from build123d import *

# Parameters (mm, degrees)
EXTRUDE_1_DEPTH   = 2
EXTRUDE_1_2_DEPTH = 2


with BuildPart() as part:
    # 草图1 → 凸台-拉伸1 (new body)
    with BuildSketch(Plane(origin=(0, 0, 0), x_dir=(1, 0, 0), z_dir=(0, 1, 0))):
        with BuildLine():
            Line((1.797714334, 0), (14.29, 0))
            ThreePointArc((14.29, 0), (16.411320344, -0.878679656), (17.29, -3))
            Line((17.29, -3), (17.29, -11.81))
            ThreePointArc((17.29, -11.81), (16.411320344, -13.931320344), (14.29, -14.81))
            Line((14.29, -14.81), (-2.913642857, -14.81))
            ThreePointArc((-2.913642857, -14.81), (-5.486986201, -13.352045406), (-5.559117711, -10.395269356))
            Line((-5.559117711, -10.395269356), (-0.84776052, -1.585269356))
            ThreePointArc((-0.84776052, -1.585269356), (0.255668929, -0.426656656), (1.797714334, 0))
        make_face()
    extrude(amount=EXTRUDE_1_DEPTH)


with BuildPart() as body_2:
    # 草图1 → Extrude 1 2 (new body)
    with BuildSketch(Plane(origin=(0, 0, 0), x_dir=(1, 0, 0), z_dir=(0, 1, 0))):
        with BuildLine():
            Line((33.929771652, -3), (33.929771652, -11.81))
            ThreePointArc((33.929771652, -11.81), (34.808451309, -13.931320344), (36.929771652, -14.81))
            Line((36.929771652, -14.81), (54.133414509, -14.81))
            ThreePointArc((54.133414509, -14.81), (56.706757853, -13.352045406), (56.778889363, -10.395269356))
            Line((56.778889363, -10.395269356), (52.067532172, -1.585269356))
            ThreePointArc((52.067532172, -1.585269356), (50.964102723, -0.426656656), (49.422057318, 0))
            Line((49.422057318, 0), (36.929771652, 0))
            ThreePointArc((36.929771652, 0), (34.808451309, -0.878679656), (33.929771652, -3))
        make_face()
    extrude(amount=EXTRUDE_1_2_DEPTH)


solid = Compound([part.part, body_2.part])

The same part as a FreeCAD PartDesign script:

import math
import FreeCAD as App
import Part
import Sketcher
Q = App.Units.Quantity

doc = App.newDocument("Part")
body = doc.addObject("PartDesign::Body", "Body")

sketch1 = body.newObject("Sketcher::SketchObject", "Sketch")
sketch1.AttachmentSupport = (doc.getObject("XZ_Plane"), [""])
sketch1.MapMode = "FlatFace"
sketch1.addGeometry(Part.LineSegment(App.Vector(14.29, 0, 0), App.Vector(1.797714, 0, 0)), False)
sketch1.addGeometry(Part.ArcOfCircle(Part.Circle(App.Vector(1.797714, 3, 0), App.Vector(0, 0, 1), 3), math.radians(-151.863296), math.radians(-90)), False)
sketch1.addGeometry(Part.LineSegment(App.Vector(-0.847761, 1.585269, 0), App.Vector(-5.559118, 10.395269, 0)), False)
sketch1.addGeometry(Part.ArcOfCircle(Part.Circle(App.Vector(-2.913643, 11.81, 0), App.Vector(0, 0, 1), 3), math.radians(90), math.radians(208.136704)), False)
sketch1.addGeometry(Part.LineSegment(App.Vector(-2.913643, 14.81, 0), App.Vector(14.29, 14.81, 0)), False)
sketch1.addGeometry(Part.ArcOfCircle(Part.Circle(App.Vector(14.29, 11.81, 0), App.Vector(0, 0, 1), 3), math.radians(0), math.radians(90)), False)
sketch1.addGeometry(Part.LineSegment(App.Vector(17.29, 11.81, 0), App.Vector(17.29, 3, 0)), False)
sketch1.addGeometry(Part.ArcOfCircle(Part.Circle(App.Vector(14.29, 3, 0), App.Vector(0, 0, 1), 3), math.radians(-90), math.radians(0)), False)
sketch1.addConstraint(Sketcher.Constraint("Tangent", 0, 2, 1, 2))
sketch1.addConstraint(Sketcher.Constraint("Tangent", 1, 1, 2, 1))
sketch1.addConstraint(Sketcher.Constraint("Tangent", 2, 2, 3, 2))
sketch1.addConstraint(Sketcher.Constraint("Tangent", 3, 1, 4, 1))
sketch1.addConstraint(Sketcher.Constraint("Tangent", 4, 2, 5, 2))
sketch1.addConstraint(Sketcher.Constraint("Tangent", 5, 1, 6, 1))
sketch1.addConstraint(Sketcher.Constraint("Tangent", 6, 2, 7, 2))
sketch1.addConstraint(Sketcher.Constraint("Tangent", 7, 1, 0, 1))
sketch1.addConstraint(Sketcher.Constraint("Horizontal", 0))
sketch1.addConstraint(Sketcher.Constraint("Horizontal", 4))
sketch1.addConstraint(Sketcher.Constraint("Vertical", 6))
sketch1.addConstraint(Sketcher.Constraint("Equal", 1, 3))
sketch1.addConstraint(Sketcher.Constraint("Equal", 3, 5))
sketch1.addConstraint(Sketcher.Constraint("Equal", 5, 7))
sketch1.addConstraint(Sketcher.Constraint("PointOnObject", 0, 2, -1))
sketch1.addConstraint(Sketcher.Constraint("Radius", 1, Q("3 mm")))
sketch1.addConstraint(Sketcher.Constraint("DistanceY", 6, 2, 6, 1, Q("8.81 mm")))
sketch1.addConstraint(Sketcher.Constraint("DistanceX", -1, 1, 5, 3, Q("14.29 mm")))
sketch1.addConstraint(Sketcher.Constraint("DistanceX", 0, 2, 0, 1, Q("12.492286 mm")))
sketch1.addConstraint(Sketcher.Constraint("DistanceX", 4, 1, 4, 2, Q("17.203643 mm")))
pad1 = body.newObject("PartDesign::Pad", "Pad")
pad1.Profile = sketch1
pad1.Length = 2
pad1.Reversed = True
body2 = doc.addObject("PartDesign::Body", "Body001")

sketch2 = body2.newObject("Sketcher::SketchObject", "Sketch001")
sketch2.AttachmentSupport = (doc.getObject("XZ_Plane001"), [""])
sketch2.MapMode = "FlatFace"
sketch2.addGeometry(Part.LineSegment(App.Vector(33.929772, 3, 0), App.Vector(33.929772, 11.81, 0)), False)
sketch2.addGeometry(Part.ArcOfCircle(Part.Circle(App.Vector(36.929772, 11.81, 0), App.Vector(0, 0, 1), 3), math.radians(90), math.radians(180)), False)
sketch2.addGeometry(Part.LineSegment(App.Vector(36.929772, 14.81, 0), App.Vector(54.133415, 14.81, 0)), False)
sketch2.addGeometry(Part.ArcOfCircle(Part.Circle(App.Vector(54.133415, 11.81, 0), App.Vector(0, 0, 1), 3), math.radians(-28.136704), math.radians(90)), False)
sketch2.addGeometry(Part.LineSegment(App.Vector(56.778889, 10.395269, 0), App.Vector(52.067532, 1.585269, 0)), False)
sketch2.addGeometry(Part.ArcOfCircle(Part.Circle(App.Vector(49.422057, 3, 0), App.Vector(0, 0, 1), 3), math.radians(-90), math.radians(-28.136704)), False)
sketch2.addGeometry(Part.LineSegment(App.Vector(49.422057, 0, 0), App.Vector(36.929772, 0, 0)), False)
sketch2.addGeometry(Part.ArcOfCircle(Part.Circle(App.Vector(36.929772, 3, 0), App.Vector(0, 0, 1), 3), math.radians(180), math.radians(270)), False)
sketch2.addConstraint(Sketcher.Constraint("Tangent", 0, 2, 1, 2))
sketch2.addConstraint(Sketcher.Constraint("Tangent", 1, 1, 2, 1))
sketch2.addConstraint(Sketcher.Constraint("Tangent", 2, 2, 3, 2))
sketch2.addConstraint(Sketcher.Constraint("Tangent", 3, 1, 4, 1))
sketch2.addConstraint(Sketcher.Constraint("Tangent", 4, 2, 5, 2))
sketch2.addConstraint(Sketcher.Constraint("Tangent", 5, 1, 6, 1))
sketch2.addConstraint(Sketcher.Constraint("Tangent", 6, 2, 7, 2))
sketch2.addConstraint(Sketcher.Constraint("Tangent", 7, 1, 0, 1))
sketch2.addConstraint(Sketcher.Constraint("Vertical", 0))
sketch2.addConstraint(Sketcher.Constraint("Horizontal", 2))
sketch2.addConstraint(Sketcher.Constraint("Horizontal", 6))
sketch2.addConstraint(Sketcher.Constraint("Equal", 1, 3))
sketch2.addConstraint(Sketcher.Constraint("Equal", 3, 5))
sketch2.addConstraint(Sketcher.Constraint("Equal", 5, 7))
sketch2.addConstraint(Sketcher.Constraint("PointOnObject", 5, 1, -1))
sketch2.addConstraint(Sketcher.Constraint("Radius", 1, Q("3 mm")))
sketch2.addConstraint(Sketcher.Constraint("DistanceY", 0, 1, 0, 2, Q("8.81 mm")))
sketch2.addConstraint(Sketcher.Constraint("DistanceX", 2, 1, 2, 2, Q("17.203643 mm")))
sketch2.addConstraint(Sketcher.Constraint("DistanceX", 6, 2, 6, 1, Q("12.492286 mm")))
sketch2.addConstraint(Sketcher.Constraint("DistanceX", -1, 1, 1, 3, Q("36.929772 mm")))
pad2 = body2.newObject("PartDesign::Pad", "Pad001")
pad2.Profile = sketch2
pad2.Length = 2
pad2.Reversed = True

doc.recompute()
